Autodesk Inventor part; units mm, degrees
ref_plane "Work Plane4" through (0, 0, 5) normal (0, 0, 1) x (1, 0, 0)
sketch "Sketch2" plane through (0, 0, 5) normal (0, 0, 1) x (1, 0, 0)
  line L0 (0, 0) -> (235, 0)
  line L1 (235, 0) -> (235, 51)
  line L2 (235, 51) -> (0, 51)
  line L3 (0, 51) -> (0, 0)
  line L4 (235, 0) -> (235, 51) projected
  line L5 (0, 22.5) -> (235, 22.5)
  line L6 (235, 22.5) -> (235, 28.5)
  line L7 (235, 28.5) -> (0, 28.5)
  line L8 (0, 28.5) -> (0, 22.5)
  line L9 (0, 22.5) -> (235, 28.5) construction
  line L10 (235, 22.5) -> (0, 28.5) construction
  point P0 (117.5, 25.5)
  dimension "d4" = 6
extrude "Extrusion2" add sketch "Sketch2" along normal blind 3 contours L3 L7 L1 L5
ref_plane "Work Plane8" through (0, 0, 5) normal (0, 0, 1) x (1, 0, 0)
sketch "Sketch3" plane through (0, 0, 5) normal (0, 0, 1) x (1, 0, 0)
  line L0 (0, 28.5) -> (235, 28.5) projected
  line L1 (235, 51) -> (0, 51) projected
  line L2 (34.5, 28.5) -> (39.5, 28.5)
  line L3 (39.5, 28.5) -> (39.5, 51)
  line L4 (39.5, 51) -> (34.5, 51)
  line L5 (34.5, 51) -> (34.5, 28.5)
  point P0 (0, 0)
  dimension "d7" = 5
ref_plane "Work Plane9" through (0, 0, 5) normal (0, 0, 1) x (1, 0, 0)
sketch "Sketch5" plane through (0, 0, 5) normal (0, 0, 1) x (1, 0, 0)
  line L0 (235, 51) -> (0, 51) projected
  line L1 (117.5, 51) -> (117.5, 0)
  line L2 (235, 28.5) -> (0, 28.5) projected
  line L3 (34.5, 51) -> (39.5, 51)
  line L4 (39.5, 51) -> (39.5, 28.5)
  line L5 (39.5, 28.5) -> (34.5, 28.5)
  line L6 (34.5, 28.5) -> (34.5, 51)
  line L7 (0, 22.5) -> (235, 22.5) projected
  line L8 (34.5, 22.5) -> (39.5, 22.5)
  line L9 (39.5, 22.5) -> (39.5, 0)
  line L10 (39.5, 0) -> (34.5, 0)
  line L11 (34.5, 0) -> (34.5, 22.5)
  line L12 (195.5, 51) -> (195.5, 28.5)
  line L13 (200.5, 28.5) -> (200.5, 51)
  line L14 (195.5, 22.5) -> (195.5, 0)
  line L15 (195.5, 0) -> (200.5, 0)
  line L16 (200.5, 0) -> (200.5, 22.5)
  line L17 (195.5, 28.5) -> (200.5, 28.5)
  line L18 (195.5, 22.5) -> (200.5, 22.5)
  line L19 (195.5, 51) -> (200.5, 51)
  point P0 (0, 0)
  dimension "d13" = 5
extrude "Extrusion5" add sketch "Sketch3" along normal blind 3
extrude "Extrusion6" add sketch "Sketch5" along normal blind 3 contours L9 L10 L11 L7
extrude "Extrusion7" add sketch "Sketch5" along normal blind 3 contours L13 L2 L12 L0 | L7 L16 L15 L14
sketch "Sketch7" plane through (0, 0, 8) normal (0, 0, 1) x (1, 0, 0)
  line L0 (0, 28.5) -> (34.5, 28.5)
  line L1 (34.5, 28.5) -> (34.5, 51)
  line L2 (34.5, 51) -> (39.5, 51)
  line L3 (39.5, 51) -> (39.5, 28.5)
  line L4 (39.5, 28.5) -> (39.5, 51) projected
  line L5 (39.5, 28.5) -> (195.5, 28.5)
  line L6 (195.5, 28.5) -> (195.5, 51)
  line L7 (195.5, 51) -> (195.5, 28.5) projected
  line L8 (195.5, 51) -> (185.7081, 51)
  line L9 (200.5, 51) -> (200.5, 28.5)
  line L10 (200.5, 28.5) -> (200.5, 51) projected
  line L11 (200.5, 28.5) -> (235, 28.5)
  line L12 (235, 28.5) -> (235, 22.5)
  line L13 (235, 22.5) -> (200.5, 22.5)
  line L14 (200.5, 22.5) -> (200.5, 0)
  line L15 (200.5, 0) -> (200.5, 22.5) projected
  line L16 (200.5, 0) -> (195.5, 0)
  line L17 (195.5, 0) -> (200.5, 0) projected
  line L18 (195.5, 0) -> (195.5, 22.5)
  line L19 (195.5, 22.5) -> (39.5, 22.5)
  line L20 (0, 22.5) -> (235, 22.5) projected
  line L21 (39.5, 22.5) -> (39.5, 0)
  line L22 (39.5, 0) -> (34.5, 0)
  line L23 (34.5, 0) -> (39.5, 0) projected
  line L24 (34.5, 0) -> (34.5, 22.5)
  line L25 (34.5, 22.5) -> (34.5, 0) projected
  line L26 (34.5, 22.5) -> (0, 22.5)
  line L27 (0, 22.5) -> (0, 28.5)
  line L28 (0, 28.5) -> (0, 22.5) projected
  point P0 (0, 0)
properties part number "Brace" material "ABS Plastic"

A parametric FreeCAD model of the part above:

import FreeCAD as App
import Part
import Sketcher
from FreeCAD import Vector
Q = App.Units.Quantity

doc = App.newDocument("Part")
body = doc.addObject("PartDesign::Body", "Body")

sketch1 = body.newObject("Sketcher::SketchObject", "Sketch")
sketch1.AttachmentSupport = (doc.getObject("XY_Plane"), [""])
sketch1.MapMode = "FlatFace"
sketch1.AttachmentOffset = App.Placement(Vector(0, 0, 5), App.Rotation())
sketch1.addGeometry(Part.LineSegment(Vector(0, 28, 0), Vector(0, 22, 0)), False)
sketch1.addGeometry(Part.LineSegment(Vector(0, 22, 0), Vector(235, 22, 0)), False)
sketch1.addGeometry(Part.LineSegment(Vector(235, 22, 0), Vector(235, 28, 0)), False)
sketch1.addGeometry(Part.LineSegment(Vector(235, 28, 0), Vector(0, 28, 0)), False)
sketch1.addConstraint(Sketcher.Constraint("Coincident", 0, 2, 1, 1))
sketch1.addConstraint(Sketcher.Constraint("Coincident", 1, 2, 2, 1))
sketch1.addConstraint(Sketcher.Constraint("Coincident", 2, 2, 3, 1))
sketch1.addConstraint(Sketcher.Constraint("Coincident", 3, 2, 0, 1))
sketch1.addConstraint(Sketcher.Constraint("Vertical", 0))
sketch1.addConstraint(Sketcher.Constraint("Horizontal", 1))
sketch1.addConstraint(Sketcher.Constraint("Vertical", 2))
sketch1.addConstraint(Sketcher.Constraint("Horizontal", 3))
sketch1.addConstraint(Sketcher.Constraint("PointOnObject", 0, 2, -2))
sketch1.addConstraint(Sketcher.Constraint("DistanceY", 0, 2, 0, 1, Q("6 mm")))
sketch1.addConstraint(Sketcher.Constraint("DistanceX", 1, 1, 1, 2, Q("235 mm")))
sketch1.addConstraint(Sketcher.Constraint("DistanceY", -1, 1, 0, 2, Q("22.5 mm")))
pad1 = body.newObject("PartDesign::Pad", "Pad")
pad1.Profile = sketch1
pad1.Length = 3

sketch2 = body.newObject("Sketcher::SketchObject", "Sketch001")
sketch2.AttachmentSupport = (doc.getObject("XY_Plane"), [""])
sketch2.MapMode = "FlatFace"
sketch2.AttachmentOffset = App.Placement(Vector(0, 0, 5), App.Rotation())
sketch2.addGeometry(Part.LineSegment(Vector(34, 51, 0), Vector(34, 28, 0)), False)
sketch2.addGeometry(Part.LineSegment(Vector(34, 28, 0), Vector(40, 28, 0)), False)
sketch2.addGeometry(Part.LineSegment(Vector(40, 28, 0), Vector(40, 51, 0)), False)
sketch2.addGeometry(Part.LineSegment(Vector(40, 51, 0), Vector(34, 51, 0)), False)
sketch2.addConstraint(Sketcher.Constraint("Coincident", 0, 2, 1, 1))
sketch2.addConstraint(Sketcher.Constraint("Coincident", 1, 2, 2, 1))
sketch2.addConstraint(Sketcher.Constraint("Coincident", 2, 2, 3, 1))
sketch2.addConstraint(Sketcher.Constraint("Coincident", 3, 2, 0, 1))
sketch2.addConstraint(Sketcher.Constraint("Vertical", 0))
sketch2.addConstraint(Sketcher.Constraint("Horizontal", 1))
sketch2.addConstraint(Sketcher.Constraint("Vertical", 2))
sketch2.addConstraint(Sketcher.Constraint("Horizontal", 3))
sketch2.addConstraint(Sketcher.Constraint("DistanceX", 1, 1, 1, 2, Q("5 mm")))
sketch2.addConstraint(Sketcher.Constraint("DistanceY", 0, 2, 0, 1, Q("22.5 mm")))
sketch2.addConstraint(Sketcher.Constraint("DistanceY", -1, 1, 2, 2, Q("51 mm")))
sketch2.addConstraint(Sketcher.Constraint("DistanceX", -1, 1, 0, 2, Q("34.5 mm")))
pad2 = body.newObject("PartDesign::Pad", "Pad001")
pad2.Profile = sketch2
pad2.Length = 3

sketch3 = body.newObject("Sketcher::SketchObject", "Sketch002")
sketch3.AttachmentSupport = (doc.getObject("XY_Plane"), [""])
sketch3.MapMode = "FlatFace"
sketch3.AttachmentOffset = App.Placement(Vector(0, 0, 5), App.Rotation())
sketch3.addGeometry(Part.LineSegment(Vector(40, 0, 0), Vector(40, 22, 0)), False)
sketch3.addGeometry(Part.LineSegment(Vector(40, 22, 0), Vector(34, 22, 0)), False)
sketch3.addGeometry(Part.LineSegment(Vector(34, 22, 0), Vector(34, 0, 0)), False)
sketch3.addGeometry(Part.LineSegment(Vector(34, 0, 0), Vector(40, 0, 0)), False)
sketch3.addConstraint(Sketcher.Constraint("Coincident", 0, 2, 1, 1))
sketch3.addConstraint(Sketcher.Constraint("Coincident", 1, 2, 2, 1))
sketch3.addConstraint(Sketcher.Constraint("Coincident", 2, 2, 3, 1))
sketch3.addConstraint(Sketcher.Constraint("Coincident", 3, 2, 0, 1))
sketch3.addConstraint(Sketcher.Constraint("Vertical", 0))
sketch3.addConstraint(Sketcher.Constraint("Horizontal", 1))
sketch3.addConstraint(Sketcher.Constraint("Vertical", 2))
sketch3.addConstraint(Sketcher.Constraint("Horizontal", 3))
sketch3.addConstraint(Sketcher.Constraint("PointOnObject", 2, 2, -1))
sketch3.addConstraint(Sketcher.Constraint("DistanceX", 1, 2, 1, 1, Q("5 mm")))
sketch3.addConstraint(Sketcher.Constraint("DistanceY", 0, 1, 0, 2, Q("22.5 mm")))
sketch3.addConstraint(Sketcher.Constraint("DistanceX", -1, 1, 0, 2, Q("39.5 mm")))
pad3 = body.newObject("PartDesign::Pad", "Pad002")
pad3.Profile = sketch3
pad3.Length = 3

sketch4 = body.newObject("Sketcher::SketchObject", "Sketch003")
sketch4.AttachmentSupport = (doc.getObject("XY_Plane"), [""])
sketch4.MapMode = "FlatFace"
sketch4.AttachmentOffset = App.Placement(Vector(0, 0, 5), App.Rotation())
sketch4.addGeometry(Part.LineSegment(Vector(200, 28, 0), Vector(200, 51, 0)), False)
sketch4.addGeometry(Part.LineSegment(Vector(200, 51, 0), Vector(196, 51, 0)), False)
sketch4.addGeometry(Part.LineSegment(Vector(196, 51, 0), Vector(196, 28, 0)), False)
sketch4.addGeometry(Part.LineSegment(Vector(196, 28, 0), Vector(200, 28, 0)), False)
sketch4.addGeometry(Part.LineSegment(Vector(200, 22, 0), Vector(196, 22, 0)), False)
sketch4.addGeometry(Part.LineSegment(Vector(196, 22, 0), Vector(196, 0, 0)), False)
sketch4.addGeometry(Part.LineSegment(Vector(196, 0, 0), Vector(200, 0, 0)), False)
sketch4.addGeometry(Part.LineSegment(Vector(200, 0, 0), Vector(200, 22, 0)), False)
sketch4.addConstraint(Sketcher.Constraint("Coincident", 0, 2, 1, 1))
sketch4.addConstraint(Sketcher.Constraint("Coincident", 1, 2, 2, 1))
sketch4.addConstraint(Sketcher.Constraint("Coincident", 2, 2, 3, 1))
sketch4.addConstraint(Sketcher.Constraint("Coincident", 3, 2, 0, 1))
sketch4.addConstraint(Sketcher.Constraint("Coincident", 4, 2, 5, 1))
sketch4.addConstraint(Sketcher.Constraint("Coincident", 5, 2, 6, 1))
sketch4.addConstraint(Sketcher.Constraint("Coincident", 6, 2, 7, 1))
sketch4.addConstraint(Sketcher.Constraint("Coincident", 7, 2, 4, 1))
sketch4.addConstraint(Sketcher.Constraint("Vertical", 0))
sketch4.addConstraint(Sketcher.Constraint("Horizontal", 1))
sketch4.addConstraint(Sketcher.Constraint("Vertical", 2))
sketch4.addConstraint(Sketcher.Constraint("Horizontal", 3))
sketch4.addConstraint(Sketcher.Constraint("Horizontal", 4))
sketch4.addConstraint(Sketcher.Constraint("Vertical", 5))
sketch4.addConstraint(Sketcher.Constraint("Horizontal", 6))
sketch4.addConstraint(Sketcher.Constraint("Vertical", 7))
sketch4.addConstraint(Sketcher.Constraint("PointOnObject", 5, 2, -1))
sketch4.addConstraint(Sketcher.Constraint("Vertical", 2, 2, 4, 2))
sketch4.addConstraint(Sketcher.Constraint("Vertical", 3, 2, 6, 2))
sketch4.addConstraint(Sketcher.Constraint("Equal", 2, 5))
sketch4.addConstraint(Sketcher.Constraint("DistanceX", 1, 2, 1, 1, Q("5 mm")))
sketch4.addConstraint(Sketcher.Constraint("DistanceY", 0, 1, 0, 2, Q("22.5 mm")))
sketch4.addConstraint(Sketcher.Constraint("DistanceY", -1, 1, 0, 2, Q("51 mm")))
sketch4.addConstraint(Sketcher.Constraint("DistanceX", -1, 1, 0, 2, Q("200.5 mm")))
pad4 = body.newObject("PartDesign::Pad", "Pad003")
pad4.Profile = sketch4
pad4.Length = 3

doc.recompute()
